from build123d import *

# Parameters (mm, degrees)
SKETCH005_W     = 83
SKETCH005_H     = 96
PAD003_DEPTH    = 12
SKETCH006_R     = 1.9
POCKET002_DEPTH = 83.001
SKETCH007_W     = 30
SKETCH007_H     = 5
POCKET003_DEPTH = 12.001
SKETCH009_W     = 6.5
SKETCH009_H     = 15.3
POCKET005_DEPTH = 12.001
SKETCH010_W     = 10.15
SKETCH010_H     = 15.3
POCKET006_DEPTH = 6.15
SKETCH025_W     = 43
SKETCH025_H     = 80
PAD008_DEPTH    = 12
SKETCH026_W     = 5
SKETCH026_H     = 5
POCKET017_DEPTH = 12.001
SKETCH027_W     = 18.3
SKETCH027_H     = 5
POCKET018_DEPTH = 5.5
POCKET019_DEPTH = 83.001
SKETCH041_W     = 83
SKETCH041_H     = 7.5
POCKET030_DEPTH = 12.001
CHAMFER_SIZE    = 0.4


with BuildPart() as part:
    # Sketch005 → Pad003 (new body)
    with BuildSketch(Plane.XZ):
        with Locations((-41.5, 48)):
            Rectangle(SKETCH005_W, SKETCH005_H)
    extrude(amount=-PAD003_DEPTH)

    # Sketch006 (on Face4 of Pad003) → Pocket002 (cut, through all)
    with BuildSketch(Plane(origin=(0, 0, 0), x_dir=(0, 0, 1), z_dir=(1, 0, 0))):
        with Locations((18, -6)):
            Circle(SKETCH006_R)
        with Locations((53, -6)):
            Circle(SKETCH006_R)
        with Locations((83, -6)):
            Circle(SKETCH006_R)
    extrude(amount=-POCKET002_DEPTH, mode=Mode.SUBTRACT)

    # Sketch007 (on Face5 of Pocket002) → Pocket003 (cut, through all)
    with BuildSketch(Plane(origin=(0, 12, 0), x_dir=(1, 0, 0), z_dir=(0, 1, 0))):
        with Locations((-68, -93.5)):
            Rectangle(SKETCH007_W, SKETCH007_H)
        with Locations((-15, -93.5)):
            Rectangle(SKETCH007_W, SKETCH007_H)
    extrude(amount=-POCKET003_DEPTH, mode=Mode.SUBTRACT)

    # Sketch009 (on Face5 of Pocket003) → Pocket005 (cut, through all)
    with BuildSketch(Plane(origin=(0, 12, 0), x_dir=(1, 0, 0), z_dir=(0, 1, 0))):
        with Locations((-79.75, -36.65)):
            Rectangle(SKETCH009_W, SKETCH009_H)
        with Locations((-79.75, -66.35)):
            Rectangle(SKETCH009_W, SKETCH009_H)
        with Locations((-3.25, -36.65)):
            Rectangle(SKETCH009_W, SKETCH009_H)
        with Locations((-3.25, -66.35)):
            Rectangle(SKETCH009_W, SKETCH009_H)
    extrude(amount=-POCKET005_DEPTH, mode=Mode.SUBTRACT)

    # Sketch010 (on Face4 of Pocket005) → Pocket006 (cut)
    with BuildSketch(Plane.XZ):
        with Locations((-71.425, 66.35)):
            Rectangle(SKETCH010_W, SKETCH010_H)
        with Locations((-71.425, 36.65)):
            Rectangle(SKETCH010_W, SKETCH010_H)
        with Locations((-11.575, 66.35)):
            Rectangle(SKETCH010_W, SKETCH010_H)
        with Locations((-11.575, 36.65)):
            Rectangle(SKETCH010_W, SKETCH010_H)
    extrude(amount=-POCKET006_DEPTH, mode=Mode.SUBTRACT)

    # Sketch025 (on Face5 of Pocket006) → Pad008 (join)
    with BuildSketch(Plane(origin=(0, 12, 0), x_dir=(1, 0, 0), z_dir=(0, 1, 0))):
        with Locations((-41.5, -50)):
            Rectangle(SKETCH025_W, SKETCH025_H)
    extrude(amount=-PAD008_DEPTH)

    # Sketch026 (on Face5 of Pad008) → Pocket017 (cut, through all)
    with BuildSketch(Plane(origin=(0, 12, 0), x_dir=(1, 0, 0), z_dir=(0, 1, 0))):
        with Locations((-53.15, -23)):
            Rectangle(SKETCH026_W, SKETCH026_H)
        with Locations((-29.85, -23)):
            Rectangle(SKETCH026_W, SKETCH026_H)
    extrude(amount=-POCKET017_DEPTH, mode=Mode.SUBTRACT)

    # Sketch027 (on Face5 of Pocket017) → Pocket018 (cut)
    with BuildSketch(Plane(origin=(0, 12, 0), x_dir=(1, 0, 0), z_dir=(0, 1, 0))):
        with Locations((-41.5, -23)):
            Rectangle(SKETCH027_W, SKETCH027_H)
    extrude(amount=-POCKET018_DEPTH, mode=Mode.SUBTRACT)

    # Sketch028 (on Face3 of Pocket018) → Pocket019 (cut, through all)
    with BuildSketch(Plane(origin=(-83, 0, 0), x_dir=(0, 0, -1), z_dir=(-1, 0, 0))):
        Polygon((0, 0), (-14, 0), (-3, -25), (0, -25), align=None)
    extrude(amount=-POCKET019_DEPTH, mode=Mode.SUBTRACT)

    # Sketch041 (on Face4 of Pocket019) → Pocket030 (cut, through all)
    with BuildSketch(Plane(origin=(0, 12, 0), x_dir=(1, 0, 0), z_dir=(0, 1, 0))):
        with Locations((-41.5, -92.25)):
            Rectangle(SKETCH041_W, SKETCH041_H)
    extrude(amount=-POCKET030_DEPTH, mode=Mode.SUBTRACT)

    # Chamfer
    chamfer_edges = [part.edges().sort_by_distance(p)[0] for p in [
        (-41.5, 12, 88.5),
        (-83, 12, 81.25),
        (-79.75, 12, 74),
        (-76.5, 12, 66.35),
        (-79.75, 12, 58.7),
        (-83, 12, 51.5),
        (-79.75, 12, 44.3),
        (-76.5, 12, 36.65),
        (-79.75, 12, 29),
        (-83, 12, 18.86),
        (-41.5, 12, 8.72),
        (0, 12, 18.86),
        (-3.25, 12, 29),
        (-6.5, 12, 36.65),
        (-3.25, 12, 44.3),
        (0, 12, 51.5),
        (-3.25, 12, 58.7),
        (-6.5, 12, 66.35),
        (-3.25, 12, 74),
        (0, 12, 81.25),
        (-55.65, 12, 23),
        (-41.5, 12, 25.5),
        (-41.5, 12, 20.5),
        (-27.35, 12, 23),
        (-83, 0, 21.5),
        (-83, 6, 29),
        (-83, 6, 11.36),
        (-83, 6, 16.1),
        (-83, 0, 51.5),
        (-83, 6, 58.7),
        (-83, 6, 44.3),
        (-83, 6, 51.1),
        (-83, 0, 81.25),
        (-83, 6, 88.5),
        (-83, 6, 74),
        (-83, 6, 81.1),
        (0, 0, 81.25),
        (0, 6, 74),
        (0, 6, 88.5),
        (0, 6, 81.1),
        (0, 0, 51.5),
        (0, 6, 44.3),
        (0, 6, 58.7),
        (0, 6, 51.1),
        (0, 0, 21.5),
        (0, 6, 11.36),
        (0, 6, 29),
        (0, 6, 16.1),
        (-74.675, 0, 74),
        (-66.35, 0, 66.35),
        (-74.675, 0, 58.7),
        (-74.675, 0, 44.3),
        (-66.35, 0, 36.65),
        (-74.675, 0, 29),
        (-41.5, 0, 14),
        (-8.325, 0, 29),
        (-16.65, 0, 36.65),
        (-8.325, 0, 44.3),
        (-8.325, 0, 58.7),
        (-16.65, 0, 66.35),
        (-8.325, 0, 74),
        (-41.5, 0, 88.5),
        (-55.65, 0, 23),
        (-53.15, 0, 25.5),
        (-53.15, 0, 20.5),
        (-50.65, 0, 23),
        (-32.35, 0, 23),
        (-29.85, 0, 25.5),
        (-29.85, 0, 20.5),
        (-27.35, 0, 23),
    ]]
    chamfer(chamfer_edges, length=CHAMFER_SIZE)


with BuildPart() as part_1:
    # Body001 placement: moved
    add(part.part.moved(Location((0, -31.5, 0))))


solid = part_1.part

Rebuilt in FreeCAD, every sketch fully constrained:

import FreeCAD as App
import Part
import Sketcher

V = App.Vector


def edges_at(feature, points):
    """Names of the edges that pass closest to the given points."""
    edges = feature.Shape.Edges
    near = lambda p: min(range(len(edges)), key=lambda i: edges[i].distToShape(Part.Vertex(*p))[0])
    return sorted({f"Edge{near(p) + 1}" for p in points})

doc = App.newDocument("Part")
body = doc.addObject("PartDesign::Body", "Body")

sketch1 = doc.addObject("Sketcher::SketchObject", "Sketch")
body.addObject(sketch1)
sketch1.AttachmentSupport = (doc.XZ_Plane, [""])
sketch1.MapMode = "FlatFace"
sketch1.addGeometry(Part.LineSegment(V(-83, 96, 0), V(-83, 0, 0)), False)
sketch1.addGeometry(Part.LineSegment(V(-83, 0, 0), V(0, 0, 0)), False)
sketch1.addGeometry(Part.LineSegment(V(0, 0, 0), V(0, 96, 0)), False)
sketch1.addGeometry(Part.LineSegment(V(0, 96, 0), V(-83, 96, 0)), False)
sketch1.addConstraint(Sketcher.Constraint("Coincident", 0, 2, 1, 1))
sketch1.addConstraint(Sketcher.Constraint("Coincident", 1, 2, 2, 1))
sketch1.addConstraint(Sketcher.Constraint("Coincident", 2, 2, 3, 1))
sketch1.addConstraint(Sketcher.Constraint("Coincident", 3, 2, 0, 1))
sketch1.addConstraint(Sketcher.Constraint("Vertical", 0))
sketch1.addConstraint(Sketcher.Constraint("Horizontal", 1))
sketch1.addConstraint(Sketcher.Constraint("Vertical", 2))
sketch1.addConstraint(Sketcher.Constraint("Horizontal", 3))
sketch1.addConstraint(Sketcher.Constraint("Coincident", 1, 2, -1, 1))
sketch1.addConstraint(Sketcher.Constraint("DistanceX", 1, 1, 1, 2, 83.0))
sketch1.addConstraint(Sketcher.Constraint("DistanceY", 0, 2, 0, 1, 96.0))
pad1 = doc.addObject("PartDesign::Pad", "Pad")
body.addObject(pad1)
pad1.Profile = sketch1
pad1.Length = 12
pad1.Reversed = True

sketch2 = doc.addObject("Sketcher::SketchObject", "Sketch001")
body.addObject(sketch2)
sketch2.AttachmentSupport = (doc.YZ_Plane, [""])
sketch2.MapMode = "FlatFace"
sketch2.addGeometry(Part.Circle(V(6, 18, 0), V(0, 0, 1), 1.9), False)
sketch2.addGeometry(Part.Circle(V(6, 53, 0), V(0, 0, 1), 1.9), False)
sketch2.addGeometry(Part.Circle(V(6, 83, 0), V(0, 0, 1), 1.9), False)
sketch2.addConstraint(Sketcher.Constraint("Equal", 0, 1))
sketch2.addConstraint(Sketcher.Constraint("Equal", 1, 2))
sketch2.addConstraint(Sketcher.Constraint("Vertical", 0, 3, 1, 3))
sketch2.addConstraint(Sketcher.Constraint("Vertical", 1, 3, 2, 3))
sketch2.addConstraint(Sketcher.Constraint("Diameter", 0, 3.8))
sketch2.addConstraint(Sketcher.Constraint("DistanceX", -1, 1, 0, 3, 6.0))
sketch2.addConstraint(Sketcher.Constraint("DistanceY", -1, 1, 0, 3, 18.0))
sketch2.addConstraint(Sketcher.Constraint("DistanceY", -1, 1, 1, 3, 53.0))
sketch2.addConstraint(Sketcher.Constraint("DistanceY", -1, 1, 2, 3, 83.0))
pocket1 = doc.addObject("PartDesign::Pocket", "Pocket")
body.addObject(pocket1)
pocket1.Profile = sketch2
pocket1.Type = "ThroughAll"

sketch3 = doc.addObject("Sketcher::SketchObject", "Sketch002")
body.addObject(sketch3)
sketch3.AttachmentSupport = (doc.XZ_Plane, [""])
sketch3.MapMode = "FlatFace"
sketch3.AttachmentOffset = App.Placement(V(0, 0, -12), App.Rotation())
sketch3.addGeometry(Part.LineSegment(V(-83, 91, 0), V(-83, 96, 0)), False)
sketch3.addGeometry(Part.LineSegment(V(-83, 96, 0), V(-53, 96, 0)), False)
sketch3.addGeometry(Part.LineSegment(V(-53, 96, 0), V(-53, 91, 0)), False)
sketch3.addGeometry(Part.LineSegment(V(-53, 91, 0), V(-83, 91, 0)), False)
sketch3.addGeometry(Part.LineSegment(V(-30, 91, 0), V(-30, 96, 0)), False)
sketch3.addGeometry(Part.LineSegment(V(-30, 96, 0), V(0, 96, 0)), False)
sketch3.addGeometry(Part.LineSegment(V(0, 96, 0), V(0, 91, 0)), False)
sketch3.addGeometry(Part.LineSegment(V(0, 91, 0), V(-30, 91, 0)), False)
sketch3.addConstraint(Sketcher.Constraint("Coincident", 0, 2, 1, 1))
sketch3.addConstraint(Sketcher.Constraint("Coincident", 1, 2, 2, 1))
sketch3.addConstraint(Sketcher.Constraint("Coincident", 2, 2, 3, 1))
sketch3.addConstraint(Sketcher.Constraint("Coincident", 3, 2, 0, 1))
sketch3.addConstraint(Sketcher.Constraint("Coincident", 4, 2, 5, 1))
sketch3.addConstraint(Sketcher.Constraint("Coincident", 5, 2, 6, 1))
sketch3.addConstraint(Sketcher.Constraint("Coincident", 6, 2, 7, 1))
sketch3.addConstraint(Sketcher.Constraint("Coincident", 7, 2, 4, 1))
sketch3.addConstraint(Sketcher.Constraint("Vertical", 0))
sketch3.addConstraint(Sketcher.Constraint("Horizontal", 1))
sketch3.addConstraint(Sketcher.Constraint("Vertical", 2))
sketch3.addConstraint(Sketcher.Constraint("Horizontal", 3))
sketch3.addConstraint(Sketcher.Constraint("Vertical", 4))
sketch3.addConstraint(Sketcher.Constraint("Horizontal", 5))
sketch3.addConstraint(Sketcher.Constraint("Vertical", 6))
sketch3.addConstraint(Sketcher.Constraint("Horizontal", 7))
sketch3.addConstraint(Sketcher.Constraint("PointOnObject", 5, 2, -2))
sketch3.addConstraint(Sketcher.Constraint("Horizontal", 1, 2, 4, 2))
sketch3.addConstraint(Sketcher.Constraint("Horizontal", 3, 2, 6, 2))
sketch3.addConstraint(Sketcher.Constraint("Equal", 3, 5))
sketch3.addConstraint(Sketcher.Constraint("DistanceX", 1, 1, 1, 2, 30.0))
sketch3.addConstraint(Sketcher.Constraint("DistanceY", 0, 1, 0, 2, 5.0))
sketch3.addConstraint(Sketcher.Constraint("DistanceX", 0, 2, -1, 1, 83.0))
sketch3.addConstraint(Sketcher.Constraint("DistanceY", -1, 1, 0, 2, 96.0))
pocket2 = doc.addObject("PartDesign::Pocket", "Pocket001")
body.addObject(pocket2)
pocket2.Profile = sketch3
pocket2.Type = "ThroughAll"
pocket2.Reversed = True

sketch4 = doc.addObject("Sketcher::SketchObject", "Sketch003")
body.addObject(sketch4)
sketch4.AttachmentSupport = (doc.XZ_Plane, [""])
sketch4.MapMode = "FlatFace"
sketch4.AttachmentOffset = App.Placement(V(0, 0, -12), App.Rotation())
sketch4.addGeometry(Part.LineSegment(V(-83, 29, 0), V(-83, 44, 0)), False)
sketch4.addGeometry(Part.LineSegment(V(-83, 44, 0), V(-76, 44, 0)), False)
sketch4.addGeometry(Part.LineSegment(V(-76, 44, 0), V(-76, 29, 0)), False)
sketch4.addGeometry(Part.LineSegment(V(-76, 29, 0), V(-83, 29, 0)), False)
sketch4.addGeometry(Part.LineSegment(V(-83, 59, 0), V(-83, 74, 0)), False)
sketch4.addGeometry(Part.LineSegment(V(-83, 74, 0), V(-76, 74, 0)), False)
sketch4.addGeometry(Part.LineSegment(V(-76, 74, 0), V(-76, 59, 0)), False)
sketch4.addGeometry(Part.LineSegment(V(-76, 59, 0), V(-83, 59, 0)), False)
sketch4.addGeometry(Part.LineSegment(V(-6, 29, 0), V(-6, 44, 0)), False)
sketch4.addGeometry(Part.LineSegment(V(-6, 44, 0), V(0, 44, 0)), False)
sketch4.addGeometry(Part.LineSegment(V(0, 44, 0), V(0, 29, 0)), False)
sketch4.addGeometry(Part.LineSegment(V(0, 29, 0), V(-6, 29, 0)), False)
sketch4.addGeometry(Part.LineSegment(V(-6, 59, 0), V(-6, 74, 0)), False)
sketch4.addGeometry(Part.LineSegment(V(-6, 74, 0), V(0, 74, 0)), False)
sketch4.addGeometry(Part.LineSegment(V(0, 74, 0), V(0, 59, 0)), False)
sketch4.addGeometry(Part.LineSegment(V(0, 59, 0), V(-6, 59, 0)), False)
sketch4.addConstraint(Sketcher.Constraint("Coincident", 0, 2, 1, 1))
sketch4.addConstraint(Sketcher.Constraint("Coincident", 1, 2, 2, 1))
sketch4.addConstraint(Sketcher.Constraint("Coincident", 2, 2, 3, 1))
sketch4.addConstraint(Sketcher.Constraint("Coincident", 3, 2, 0, 1))
sketch4.addConstraint(Sketcher.Constraint("Coincident", 4, 2, 5, 1))
sketch4.addConstraint(Sketcher.Constraint("Coincident", 5, 2, 6, 1))
sketch4.addConstraint(Sketcher.Constraint("Coincident", 6, 2, 7, 1))
sketch4.addConstraint(Sketcher.Constraint("Coincident", 7, 2, 4, 1))
sketch4.addConstraint(Sketcher.Constraint("Coincident", 8, 2, 9, 1))
sketch4.addConstraint(Sketcher.Constraint("Coincident", 9, 2, 10, 1))
sketch4.addConstraint(Sketcher.Constraint("Coincident", 10, 2, 11, 1))
sketch4.addConstraint(Sketcher.Constraint("Coincident", 11, 2, 8, 1))
sketch4.addConstraint(Sketcher.Constraint("Coincident", 12, 2, 13, 1))
sketch4.addConstraint(Sketcher.Constraint("Coincident", 13, 2, 14, 1))
sketch4.addConstraint(Sketcher.Constraint("Coincident", 14, 2, 15, 1))
sketch4.addConstraint(Sketcher.Constraint("Coincident", 15, 2, 12, 1))
sketch4.addConstraint(Sketcher.Constraint("Vertical", 0))
sketch4.addConstraint(Sketcher.Constraint("Horizontal", 1))
sketch4.addConstraint(Sketcher.Constraint("Vertical", 2))
sketch4.addConstraint(Sketcher.Constraint("Horizontal", 3))
sketch4.addConstraint(Sketcher.Constraint("Vertical", 4))
sketch4.addConstraint(Sketcher.Constraint("Horizontal", 5))
sketch4.addConstraint(Sketcher.Constraint("Vertical", 6))
sketch4.addConstraint(Sketcher.Constraint("Horizontal", 7))
sketch4.addConstraint(Sketcher.Constraint("Vertical", 8))
sketch4.addConstraint(Sketcher.Constraint("Horizontal", 9))
sketch4.addConstraint(Sketcher.Constraint("Vertical", 10))
sketch4.addConstraint(Sketcher.Constraint("Horizontal", 11))
sketch4.addConstraint(Sketcher.Constraint("Vertical", 12))
sketch4.addConstraint(Sketcher.Constraint("Horizontal", 13))
sketch4.addConstraint(Sketcher.Constraint("Vertical", 14))
sketch4.addConstraint(Sketcher.Constraint("Horizontal", 15))
sketch4.addConstraint(Sketcher.Constraint("PointOnObject", 9, 2, -2))
sketch4.addConstraint(Sketcher.Constraint("PointOnObject", 13, 2, -2))
sketch4.addConstraint(Sketcher.Constraint("Horizontal", 1, 2, 8, 2))
sketch4.addConstraint(Sketcher.Constraint("Horizontal", 3, 2, 10, 2))
sketch4.addConstraint(Sketcher.Constraint("Horizontal", 5, 2, 12, 2))
sketch4.addConstraint(Sketcher.Constraint("Horizontal", 7, 2, 14, 2))
sketch4.addConstraint(Sketcher.Constraint("Vertical", 3, 2, 4, 2))
sketch4.addConstraint(Sketcher.Constraint("Vertical", 2, 2, 5, 2))
sketch4.addConstraint(Sketcher.Constraint("Vertical", 11, 2, 12, 2))
sketch4.addConstraint(Sketcher.Constraint("Equal", 7, 9))
sketch4.addConstraint(Sketcher.Constraint("Equal", 2, 4))
sketch4.addConstraint(Sketcher.Constraint("DistanceX", 1, 1, 1, 2, 6.5))
sketch4.addConstraint(Sketcher.Constraint("DistanceY", 0, 1, 0, 2, 15.3))
sketch4.addConstraint(Sketcher.Constraint("DistanceX", 0, 2, -1, 1, 83.0))
sketch4.addConstraint(Sketcher.Constraint("DistanceY", -1, 1, 2, 2, 29.0))
sketch4.addConstraint(Sketcher.Constraint("DistanceY", -1, 1, 4, 2, 74.0))
pocket3 = doc.addObject("PartDesign::Pocket", "Pocket002")
body.addObject(pocket3)
pocket3.Profile = sketch4
pocket3.Type = "ThroughAll"
pocket3.Reversed = True

sketch5 = doc.addObject("Sketcher::SketchObject", "Sketch004")
body.addObject(sketch5)
sketch5.AttachmentSupport = (doc.XZ_Plane, [""])
sketch5.MapMode = "FlatFace"
sketch5.addGeometry(Part.LineSegment(V(-76, 74, 0), V(-76, 59, 0)), False)
sketch5.addGeometry(Part.LineSegment(V(-76, 59, 0), V(-66, 59, 0)), False)
sketch5.addGeometry(Part.LineSegment(V(-66, 59, 0), V(-66, 74, 0)), False)
sketch5.addGeometry(Part.LineSegment(V(-66, 74, 0), V(-76, 74, 0)), False)
sketch5.addGeometry(Part.LineSegment(V(-76, 44, 0), V(-76, 29, 0)), False)
sketch5.addGeometry(Part.LineSegment(V(-76, 29, 0), V(-66, 29, 0)), False)
sketch5.addGeometry(Part.LineSegment(V(-66, 29, 0), V(-66, 44, 0)), False)
sketch5.addGeometry(Part.LineSegment(V(-66, 44, 0), V(-76, 44, 0)), False)
sketch5.addGeometry(Part.LineSegment(V(-17, 74, 0), V(-17, 59, 0)), False)
sketch5.addGeometry(Part.LineSegment(V(-17, 59, 0), V(-6, 59, 0)), False)
sketch5.addGeometry(Part.LineSegment(V(-6, 59, 0), V(-6, 74, 0)), False)
sketch5.addGeometry(Part.LineSegment(V(-6, 74, 0), V(-17, 74, 0)), False)
sketch5.addGeometry(Part.LineSegment(V(-17, 44, 0), V(-17, 29, 0)), False)
sketch5.addGeometry(Part.LineSegment(V(-17, 29, 0), V(-6, 29, 0)), False)
sketch5.addGeometry(Part.LineSegment(V(-6, 29, 0), V(-6, 44, 0)), False)
sketch5.addGeometry(Part.LineSegment(V(-6, 44, 0), V(-17, 44, 0)), False)
sketch5.addConstraint(Sketcher.Constraint("Coincident", 0, 2, 1, 1))
sketch5.addConstraint(Sketcher.Constraint("Coincident", 1, 2, 2, 1))
sketch5.addConstraint(Sketcher.Constraint("Coincident", 2, 2, 3, 1))
sketch5.addConstraint(Sketcher.Constraint("Coincident", 3, 2, 0, 1))
sketch5.addConstraint(Sketcher.Constraint("Coincident", 4, 2, 5, 1))
sketch5.addConstraint(Sketcher.Constraint("Coincident", 5, 2, 6, 1))
sketch5.addConstraint(Sketcher.Constraint("Coincident", 6, 2, 7, 1))
sketch5.addConstraint(Sketcher.Constraint("Coincident", 7, 2, 4, 1))
sketch5.addConstraint(Sketcher.Constraint("Coincident", 8, 2, 9, 1))
sketch5.addConstraint(Sketcher.Constraint("Coincident", 9, 2, 10, 1))
sketch5.addConstraint(Sketcher.Constraint("Coincident", 10, 2, 11, 1))
sketch5.addConstraint(Sketcher.Constraint("Coincident", 11, 2, 8, 1))
sketch5.addConstraint(Sketcher.Constraint("Coincident", 12, 2, 13, 1))
sketch5.addConstraint(Sketcher.Constraint("Coincident", 13, 2, 14, 1))
sketch5.addConstraint(Sketcher.Constraint("Coincident", 14, 2, 15, 1))
sketch5.addConstraint(Sketcher.Constraint("Coincident", 15, 2, 12, 1))
sketch5.addConstraint(Sketcher.Constraint("Vertical", 0))
sketch5.addConstraint(Sketcher.Constraint("Horizontal", 1))
sketch5.addConstraint(Sketcher.Constraint("Vertical", 2))
sketch5.addConstraint(Sketcher.Constraint("Horizontal", 3))
sketch5.addConstraint(Sketcher.Constraint("Vertical", 4))
sketch5.addConstraint(Sketcher.Constraint("Horizontal", 5))
sketch5.addConstraint(Sketcher.Constraint("Vertical", 6))
sketch5.addConstraint(Sketcher.Constraint("Horizontal", 7))
sketch5.addConstraint(Sketcher.Constraint("Vertical", 8))
sketch5.addConstraint(Sketcher.Constraint("Horizontal", 9))
sketch5.addConstraint(Sketcher.Constraint("Vertical", 10))
sketch5.addConstraint(Sketcher.Constraint("Horizontal", 11))
sketch5.addConstraint(Sketcher.Constraint("Vertical", 12))
sketch5.addConstraint(Sketcher.Constraint("Horizontal", 13))
sketch5.addConstraint(Sketcher.Constraint("Vertical", 14))
sketch5.addConstraint(Sketcher.Constraint("Horizontal", 15))
sketch5.addConstraint(Sketcher.Constraint("Horizontal", 1, 2, 8, 2))
sketch5.addConstraint(Sketcher.Constraint("Horizontal", 3, 2, 10, 2))
sketch5.addConstraint(Sketcher.Constraint("Horizontal", 5, 2, 12, 2))
sketch5.addConstraint(Sketcher.Constraint("Horizontal", 7, 2, 14, 2))
sketch5.addConstraint(Sketcher.Constraint("Vertical", 3, 2, 4, 2))
sketch5.addConstraint(Sketcher.Constraint("Vertical", 2, 2, 5, 2))
sketch5.addConstraint(Sketcher.Constraint("Vertical", 11, 2, 12, 2))
sketch5.addConstraint(Sketcher.Constraint("Vertical", 10, 2, 13, 2))
sketch5.addConstraint(Sketcher.Constraint("Equal", 7, 9))
sketch5.addConstraint(Sketcher.Constraint("Equal", 2, 4))
sketch5.addConstraint(Sketcher.Constraint("DistanceY", 0, 2, 0, 1, 15.3))
sketch5.addConstraint(Sketcher.Constraint("DistanceY", -1, 1, 2, 2, 74.0))
sketch5.addConstraint(Sketcher.Constraint("DistanceY", -1, 1, 4, 2, 29.0))
sketch5.addConstraint(Sketcher.Constraint("DistanceX", 1, 1, 1, 2, 10.15))
sketch5.addConstraint(Sketcher.Constraint("DistanceX", 0, 2, -1, 1, 76.5))
sketch5.addConstraint(Sketcher.Constraint("DistanceX", 9, 2, -1, 1, 6.5))
pocket4 = doc.addObject("PartDesign::Pocket", "Pocket003")
body.addObject(pocket4)
pocket4.Profile = sketch5
pocket4.Length = 6.15

sketch6 = doc.addObject("Sketcher::SketchObject", "Sketch005")
body.addObject(sketch6)
sketch6.AttachmentSupport = (doc.XZ_Plane, [""])
sketch6.MapMode = "FlatFace"
sketch6.AttachmentOffset = App.Placement(V(0, 0, -12), App.Rotation())
sketch6.addGeometry(Part.LineSegment(V(-63, 10, 0), V(-63, 90, 0)), False)
sketch6.addGeometry(Part.LineSegment(V(-63, 90, 0), V(-20, 90, 0)), False)
sketch6.addGeometry(Part.LineSegment(V(-20, 90, 0), V(-20, 10, 0)), False)
sketch6.addGeometry(Part.LineSegment(V(-20, 10, 0), V(-63, 10, 0)), False)
sketch6.addConstraint(Sketcher.Constraint("Coincident", 0, 2, 1, 1))
sketch6.addConstraint(Sketcher.Constraint("Coincident", 1, 2, 2, 1))
sketch6.addConstraint(Sketcher.Constraint("Coincident", 2, 2, 3, 1))
sketch6.addConstraint(Sketcher.Constraint("Coincident", 3, 2, 0, 1))
sketch6.addConstraint(Sketcher.Constraint("Vertical", 0))
sketch6.addConstraint(Sketcher.Constraint("Horizontal", 1))
sketch6.addConstraint(Sketcher.Constraint("Vertical", 2))
sketch6.addConstraint(Sketcher.Constraint("Horizontal", 3))
sketch6.addConstraint(Sketcher.Constraint("DistanceX", 1, 1, 1, 2, 43.0))
sketch6.addConstraint(Sketcher.Constraint("DistanceY", 0, 1, 0, 2, 80.0))
sketch6.addConstraint(Sketcher.Constraint("DistanceX", 0, 2, -1, 1, 63.0))
sketch6.addConstraint(Sketcher.Constraint("DistanceY", -1, 1, 0, 2, 90.0))
pad2 = doc.addObject("PartDesign::Pad", "Pad001")
body.addObject(pad2)
pad2.Profile = sketch6
pad2.Length = 12

sketch7 = doc.addObject("Sketcher::SketchObject", "Sketch006")
body.addObject(sketch7)
sketch7.AttachmentSupport = (doc.XZ_Plane, [""])
sketch7.MapMode = "FlatFace"
sketch7.AttachmentOffset = App.Placement(V(0, 0, -12), App.Rotation())
sketch7.addGeometry(Part.LineSegment(V(-56, 20, 0), V(-56, 26, 0)), False)
sketch7.addGeometry(Part.LineSegment(V(-56, 26, 0), V(-51, 26, 0)), False)
sketch7.addGeometry(Part.LineSegment(V(-51, 26, 0), V(-51, 20, 0)), False)
sketch7.addGeometry(Part.LineSegment(V(-51, 20, 0), V(-56, 20, 0)), False)
sketch7.addGeometry(Part.LineSegment(V(-32, 20, 0), V(-32, 26, 0)), False)
sketch7.addGeometry(Part.LineSegment(V(-32, 26, 0), V(-27, 26, 0)), False)
sketch7.addGeometry(Part.LineSegment(V(-27, 26, 0), V(-27, 20, 0)), False)
sketch7.addGeometry(Part.LineSegment(V(-27, 20, 0), V(-32, 20, 0)), False)
sketch7.addConstraint(Sketcher.Constraint("Coincident", 0, 2, 1, 1))
sketch7.addConstraint(Sketcher.Constraint("Coincident", 1, 2, 2, 1))
sketch7.addConstraint(Sketcher.Constraint("Coincident", 2, 2, 3, 1))
sketch7.addConstraint(Sketcher.Constraint("Coincident", 3, 2, 0, 1))
sketch7.addConstraint(Sketcher.Constraint("Coincident", 4, 2, 5, 1))
sketch7.addConstraint(Sketcher.Constraint("Coincident", 5, 2, 6, 1))
sketch7.addConstraint(Sketcher.Constraint("Coincident", 6, 2, 7, 1))
sketch7.addConstraint(Sketcher.Constraint("Coincident", 7, 2, 4, 1))
sketch7.addConstraint(Sketcher.Constraint("Vertical", 0))
sketch7.addConstraint(Sketcher.Constraint("Horizontal", 1))
sketch7.addConstraint(Sketcher.Constraint("Vertical", 2))
sketch7.addConstraint(Sketcher.Constraint("Horizontal", 3))
sketch7.addConstraint(Sketcher.Constraint("Vertical", 4))
sketch7.addConstraint(Sketcher.Constraint("Horizontal", 5))
sketch7.addConstraint(Sketcher.Constraint("Vertical", 6))
sketch7.addConstraint(Sketcher.Constraint("Horizontal", 7))
sketch7.addConstraint(Sketcher.Constraint("Horizontal", 1, 2, 4, 2))
sketch7.addConstraint(Sketcher.Constraint("Horizontal", 3, 2, 6, 2))
sketch7.addConstraint(Sketcher.Constraint("Equal", 3, 5))
sketch7.addConstraint(Sketcher.Constraint("Equal", 7, 0))
sketch7.addConstraint(Sketcher.Constraint("DistanceX", 1, 1, 1, 2, 5.0))
sketch7.addConstraint(Sketcher.Constraint("DistanceY", -1, 1, 0, 2, 25.5))
sketch7.addConstraint(Sketcher.Constraint("DistanceX", 1, 2, 4, 2, 18.3))
sketch7.addConstraint(Sketcher.Constraint("DistanceX", 0, 2, -1, 1, 55.65))
pocket5 = doc.addObject("PartDesign::Pocket", "Pocket004")
body.addObject(pocket5)
pocket5.Profile = sketch7
pocket5.Type = "ThroughAll"
pocket5.Reversed = True

sketch8 = doc.addObject("Sketcher::SketchObject", "Sketch007")
body.addObject(sketch8)
sketch8.AttachmentSupport = (doc.XZ_Plane, [""])
sketch8.MapMode = "FlatFace"
sketch8.AttachmentOffset = App.Placement(V(0, 0, -12), App.Rotation())
sketch8.addGeometry(Part.LineSegment(V(-51, 20, 0), V(-51, 26, 0)), False)
sketch8.addGeometry(Part.LineSegment(V(-51, 26, 0), V(-32, 26, 0)), False)
sketch8.addGeometry(Part.LineSegment(V(-32, 26, 0), V(-32, 20, 0)), False)
sketch8.addGeometry(Part.LineSegment(V(-32, 20, 0), V(-51, 20, 0)), False)
sketch8.addConstraint(Sketcher.Constraint("Coincident", 0, 2, 1, 1))
sketch8.addConstraint(Sketcher.Constraint("Coincident", 1, 2, 2, 1))
sketch8.addConstraint(Sketcher.Constraint("Coincident", 2, 2, 3, 1))
sketch8.addConstraint(Sketcher.Constraint("Coincident", 3, 2, 0, 1))
sketch8.addConstraint(Sketcher.Constraint("Vertical", 0))
sketch8.addConstraint(Sketcher.Constraint("Horizontal", 1))
sketch8.addConstraint(Sketcher.Constraint("Vertical", 2))
sketch8.addConstraint(Sketcher.Constraint("Horizontal", 3))
sketch8.addConstraint(Sketcher.Constraint("DistanceY", 0, 1, 0, 2, 5.0))
sketch8.addConstraint(Sketcher.Constraint("DistanceX", 1, 1, 1, 2, 18.3))
sketch8.addConstraint(Sketcher.Constraint("DistanceY", -1, 1, 0, 2, 25.5))
sketch8.addConstraint(Sketcher.Constraint("DistanceX", 0, 2, -1, 1, 50.65))
pocket6 = doc.addObject("PartDesign::Pocket", "Pocket005")
body.addObject(pocket6)
pocket6.Profile = sketch8
pocket6.Length = 5.5
pocket6.Reversed = True

sketch9 = doc.addObject("Sketcher::SketchObject", "Sketch008")
body.addObject(sketch9)
sketch9.AttachmentSupport = (doc.YZ_Plane, [""])
sketch9.MapMode = "FlatFace"
sketch9.AttachmentOffset = App.Placement(V(0, 0, -83), App.Rotation())
sketch9.addGeometry(Part.LineSegment(V(0, 0, 0), V(0, 14, 0)), False)
sketch9.addGeometry(Part.LineSegment(V(0, 14, 0), V(25, 3, 0)), False)
sketch9.addGeometry(Part.LineSegment(V(25, 3, 0), V(25, 0, 0)), False)
sketch9.addGeometry(Part.LineSegment(V(25, 0, 0), V(0, 0, 0)), False)
sketch9.addConstraint(Sketcher.Constraint("Coincident", 0, 2, 1, 1))
sketch9.addConstraint(Sketcher.Constraint("Coincident", 1, 2, 2, 1))
sketch9.addConstraint(Sketcher.Constraint("Coincident", 2, 2, 3, 1))
sketch9.addConstraint(Sketcher.Constraint("Coincident", 3, 2, 0, 1))
sketch9.addConstraint(Sketcher.Constraint("Vertical", 0))
sketch9.addConstraint(Sketcher.Constraint("Vertical", 2))
sketch9.addConstraint(Sketcher.Constraint("Horizontal", 3))
sketch9.addConstraint(Sketcher.Constraint("Coincident", 3, 2, -1, 1))
sketch9.addConstraint(Sketcher.Constraint("DistanceX", 3, 2, 3, 1, 25.0))
sketch9.addConstraint(Sketcher.Constraint("DistanceY", 0, 1, 0, 2, 14.0))
sketch9.addConstraint(Sketcher.Constraint("DistanceY", 2, 2, 2, 1, 3.0))
pocket7 = doc.addObject("PartDesign::Pocket", "Pocket006")
body.addObject(pocket7)
pocket7.Profile = sketch9
pocket7.Type = "ThroughAll"
pocket7.Reversed = True

sketch10 = doc.addObject("Sketcher::SketchObject", "Sketch009")
body.addObject(sketch10)
sketch10.AttachmentSupport = (doc.XZ_Plane, [""])
sketch10.MapMode = "FlatFace"
sketch10.AttachmentOffset = App.Placement(V(0, 0, -12), App.Rotation())
sketch10.addGeometry(Part.LineSegment(V(-83, 88, 0), V(-83, 96, 0)), False)
sketch10.addGeometry(Part.LineSegment(V(-83, 96, 0), V(0, 96, 0)), False)
sketch10.addGeometry(Part.LineSegment(V(0, 96, 0), V(0, 88, 0)), False)
sketch10.addGeometry(Part.LineSegment(V(0, 88, 0), V(-83, 88, 0)), False)
sketch10.addConstraint(Sketcher.Constraint("Coincident", 0, 2, 1, 1))
sketch10.addConstraint(Sketcher.Constraint("Coincident", 1, 2, 2, 1))
sketch10.addConstraint(Sketcher.Constraint("Coincident", 2, 2, 3, 1))
sketch10.addConstraint(Sketcher.Constraint("Coincident", 3, 2, 0, 1))
sketch10.addConstraint(Sketcher.Constraint("Vertical", 0))
sketch10.addConstraint(Sketcher.Constraint("Horizontal", 1))
sketch10.addConstraint(Sketcher.Constraint("Vertical", 2))
sketch10.addConstraint(Sketcher.Constraint("Horizontal", 3))
sketch10.addConstraint(Sketcher.Constraint("PointOnObject", 1, 2, -2))
sketch10.addConstraint(Sketcher.Constraint("DistanceX", 1, 1, 1, 2, 83.0))
sketch10.addConstraint(Sketcher.Constraint("DistanceY", 0, 1, 0, 2, 7.5))
sketch10.addConstraint(Sketcher.Constraint("DistanceY", -1, 1, 0, 2, 96.0))
pocket8 = doc.addObject("PartDesign::Pocket", "Pocket007")
body.addObject(pocket8)
pocket8.Profile = sketch10
pocket8.Type = "ThroughAll"
pocket8.Reversed = True
doc.recompute()

chamfer = doc.addObject("PartDesign::Chamfer", "Chamfer")
body.addObject(chamfer)
chamfer.Base = (pocket8, edges_at(pocket8, [
    (-41.5, 12, 88.5),
    (-83, 12, 81.25),
    (-79.75, 12, 74),
    (-76.5, 12, 66.35),
    (-79.75, 12, 58.7),
    (-83, 12, 51.5),
    (-79.75, 12, 44.3),
    (-76.5, 12, 36.65),
    (-79.75, 12, 29),
    (-83, 12, 18.86),
    (-41.5, 12, 8.72),
    (0, 12, 18.86),
    (-3.25, 12, 29),
    (-6.5, 12, 36.65),
    (-3.25, 12, 44.3),
    (0, 12, 51.5),
    (-3.25, 12, 58.7),
    (-6.5, 12, 66.35),
    (-3.25, 12, 74),
    (0, 12, 81.25),
    (-55.65, 12, 23),
    (-41.5, 12, 25.5),
    (-41.5, 12, 20.5),
    (-27.35, 12, 23),
    (-83, 0, 21.5),
    (-83, 6, 29),
    (-83, 6, 11.36),
    (-83, 6, 16.1),
    (-83, 0, 51.5),
    (-83, 6, 58.7),
    (-83, 6, 44.3),
    (-83, 6, 51.1),
    (-83, 0, 81.25),
    (-83, 6, 88.5),
    (-83, 6, 74),
    (-83, 6, 81.1),
    (0, 0, 81.25),
    (0, 6, 74),
    (0, 6, 88.5),
    (0, 6, 81.1),
    (0, 0, 51.5),
    (0, 6, 44.3),
    (0, 6, 58.7),
    (0, 6, 51.1),
    (0, 0, 21.5),
    (0, 6, 11.36),
    (0, 6, 29),
    (0, 6, 16.1),
    (-74.675, 0, 74),
    (-66.35, 0, 66.35),
    (-74.675, 0, 58.7),
    (-74.675, 0, 44.3),
    (-66.35, 0, 36.65),
    (-74.675, 0, 29),
    (-41.5, 0, 14),
    (-8.325, 0, 29),
    (-16.65, 0, 36.65),
    (-8.325, 0, 44.3),
    (-8.325, 0, 58.7),
    (-16.65, 0, 66.35),
    (-8.325, 0, 74),
    (-41.5, 0, 88.5),
    (-55.65, 0, 23),
    (-53.15, 0, 25.5),
    (-53.15, 0, 20.5),
    (-50.65, 0, 23),
    (-32.35, 0, 23),
    (-29.85, 0, 25.5),
    (-29.85, 0, 20.5),
    (-27.35, 0, 23),
]))
chamfer.Size = 0.4
body2 = doc.addObject("PartDesign::Body", "Body001")
doc.recompute()

body.Placement = App.Placement(V(0, -31.5, 0), App.Rotation(V(0, 0, 1), 0))
boolean = doc.addObject("PartDesign::Boolean", "Boolean")
body2.addObject(boolean)
boolean.Type = "Fuse"
boolean.addObjects([body])

doc.recompute()
